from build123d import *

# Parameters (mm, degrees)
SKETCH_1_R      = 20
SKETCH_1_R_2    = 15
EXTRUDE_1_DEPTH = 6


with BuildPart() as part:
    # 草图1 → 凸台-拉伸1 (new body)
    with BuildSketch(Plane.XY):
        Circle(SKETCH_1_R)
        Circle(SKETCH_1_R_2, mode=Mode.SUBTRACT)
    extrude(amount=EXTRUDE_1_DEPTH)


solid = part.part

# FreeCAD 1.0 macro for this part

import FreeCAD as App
import Part
import Sketcher

V = App.Vector

doc = App.newDocument("Part")
body = doc.addObject("PartDesign::Body", "Body")

# Sketch on XY plane
sketch1 = body.newObject("Sketcher::SketchObject", "Sketch")
sketch1.AttachmentSupport = (doc.getObject("XY_Plane"), [""])
sketch1.MapMode = "FlatFace"
sketch1.addGeometry(Part.Circle(V(0, 0, 0), V(0, 0, 1), 20), False)
sketch1.addGeometry(Part.Circle(V(0, 0, 0), V(0, 0, 1), 15), False)
sketch1.addConstraint(Sketcher.Constraint("Coincident", 0, 3, -1, 1))
sketch1.addConstraint(Sketcher.Constraint("Coincident", 1, 3, -1, 1))
sketch1.addConstraint(Sketcher.Constraint("Diameter", 0, 40.0))
sketch1.addConstraint(Sketcher.Constraint("Diameter", 1, 30.0))
pad1 = body.newObject("PartDesign::Pad", "Pad")
pad1.Profile = sketch1
pad1.Length = 6

doc.recompute()
